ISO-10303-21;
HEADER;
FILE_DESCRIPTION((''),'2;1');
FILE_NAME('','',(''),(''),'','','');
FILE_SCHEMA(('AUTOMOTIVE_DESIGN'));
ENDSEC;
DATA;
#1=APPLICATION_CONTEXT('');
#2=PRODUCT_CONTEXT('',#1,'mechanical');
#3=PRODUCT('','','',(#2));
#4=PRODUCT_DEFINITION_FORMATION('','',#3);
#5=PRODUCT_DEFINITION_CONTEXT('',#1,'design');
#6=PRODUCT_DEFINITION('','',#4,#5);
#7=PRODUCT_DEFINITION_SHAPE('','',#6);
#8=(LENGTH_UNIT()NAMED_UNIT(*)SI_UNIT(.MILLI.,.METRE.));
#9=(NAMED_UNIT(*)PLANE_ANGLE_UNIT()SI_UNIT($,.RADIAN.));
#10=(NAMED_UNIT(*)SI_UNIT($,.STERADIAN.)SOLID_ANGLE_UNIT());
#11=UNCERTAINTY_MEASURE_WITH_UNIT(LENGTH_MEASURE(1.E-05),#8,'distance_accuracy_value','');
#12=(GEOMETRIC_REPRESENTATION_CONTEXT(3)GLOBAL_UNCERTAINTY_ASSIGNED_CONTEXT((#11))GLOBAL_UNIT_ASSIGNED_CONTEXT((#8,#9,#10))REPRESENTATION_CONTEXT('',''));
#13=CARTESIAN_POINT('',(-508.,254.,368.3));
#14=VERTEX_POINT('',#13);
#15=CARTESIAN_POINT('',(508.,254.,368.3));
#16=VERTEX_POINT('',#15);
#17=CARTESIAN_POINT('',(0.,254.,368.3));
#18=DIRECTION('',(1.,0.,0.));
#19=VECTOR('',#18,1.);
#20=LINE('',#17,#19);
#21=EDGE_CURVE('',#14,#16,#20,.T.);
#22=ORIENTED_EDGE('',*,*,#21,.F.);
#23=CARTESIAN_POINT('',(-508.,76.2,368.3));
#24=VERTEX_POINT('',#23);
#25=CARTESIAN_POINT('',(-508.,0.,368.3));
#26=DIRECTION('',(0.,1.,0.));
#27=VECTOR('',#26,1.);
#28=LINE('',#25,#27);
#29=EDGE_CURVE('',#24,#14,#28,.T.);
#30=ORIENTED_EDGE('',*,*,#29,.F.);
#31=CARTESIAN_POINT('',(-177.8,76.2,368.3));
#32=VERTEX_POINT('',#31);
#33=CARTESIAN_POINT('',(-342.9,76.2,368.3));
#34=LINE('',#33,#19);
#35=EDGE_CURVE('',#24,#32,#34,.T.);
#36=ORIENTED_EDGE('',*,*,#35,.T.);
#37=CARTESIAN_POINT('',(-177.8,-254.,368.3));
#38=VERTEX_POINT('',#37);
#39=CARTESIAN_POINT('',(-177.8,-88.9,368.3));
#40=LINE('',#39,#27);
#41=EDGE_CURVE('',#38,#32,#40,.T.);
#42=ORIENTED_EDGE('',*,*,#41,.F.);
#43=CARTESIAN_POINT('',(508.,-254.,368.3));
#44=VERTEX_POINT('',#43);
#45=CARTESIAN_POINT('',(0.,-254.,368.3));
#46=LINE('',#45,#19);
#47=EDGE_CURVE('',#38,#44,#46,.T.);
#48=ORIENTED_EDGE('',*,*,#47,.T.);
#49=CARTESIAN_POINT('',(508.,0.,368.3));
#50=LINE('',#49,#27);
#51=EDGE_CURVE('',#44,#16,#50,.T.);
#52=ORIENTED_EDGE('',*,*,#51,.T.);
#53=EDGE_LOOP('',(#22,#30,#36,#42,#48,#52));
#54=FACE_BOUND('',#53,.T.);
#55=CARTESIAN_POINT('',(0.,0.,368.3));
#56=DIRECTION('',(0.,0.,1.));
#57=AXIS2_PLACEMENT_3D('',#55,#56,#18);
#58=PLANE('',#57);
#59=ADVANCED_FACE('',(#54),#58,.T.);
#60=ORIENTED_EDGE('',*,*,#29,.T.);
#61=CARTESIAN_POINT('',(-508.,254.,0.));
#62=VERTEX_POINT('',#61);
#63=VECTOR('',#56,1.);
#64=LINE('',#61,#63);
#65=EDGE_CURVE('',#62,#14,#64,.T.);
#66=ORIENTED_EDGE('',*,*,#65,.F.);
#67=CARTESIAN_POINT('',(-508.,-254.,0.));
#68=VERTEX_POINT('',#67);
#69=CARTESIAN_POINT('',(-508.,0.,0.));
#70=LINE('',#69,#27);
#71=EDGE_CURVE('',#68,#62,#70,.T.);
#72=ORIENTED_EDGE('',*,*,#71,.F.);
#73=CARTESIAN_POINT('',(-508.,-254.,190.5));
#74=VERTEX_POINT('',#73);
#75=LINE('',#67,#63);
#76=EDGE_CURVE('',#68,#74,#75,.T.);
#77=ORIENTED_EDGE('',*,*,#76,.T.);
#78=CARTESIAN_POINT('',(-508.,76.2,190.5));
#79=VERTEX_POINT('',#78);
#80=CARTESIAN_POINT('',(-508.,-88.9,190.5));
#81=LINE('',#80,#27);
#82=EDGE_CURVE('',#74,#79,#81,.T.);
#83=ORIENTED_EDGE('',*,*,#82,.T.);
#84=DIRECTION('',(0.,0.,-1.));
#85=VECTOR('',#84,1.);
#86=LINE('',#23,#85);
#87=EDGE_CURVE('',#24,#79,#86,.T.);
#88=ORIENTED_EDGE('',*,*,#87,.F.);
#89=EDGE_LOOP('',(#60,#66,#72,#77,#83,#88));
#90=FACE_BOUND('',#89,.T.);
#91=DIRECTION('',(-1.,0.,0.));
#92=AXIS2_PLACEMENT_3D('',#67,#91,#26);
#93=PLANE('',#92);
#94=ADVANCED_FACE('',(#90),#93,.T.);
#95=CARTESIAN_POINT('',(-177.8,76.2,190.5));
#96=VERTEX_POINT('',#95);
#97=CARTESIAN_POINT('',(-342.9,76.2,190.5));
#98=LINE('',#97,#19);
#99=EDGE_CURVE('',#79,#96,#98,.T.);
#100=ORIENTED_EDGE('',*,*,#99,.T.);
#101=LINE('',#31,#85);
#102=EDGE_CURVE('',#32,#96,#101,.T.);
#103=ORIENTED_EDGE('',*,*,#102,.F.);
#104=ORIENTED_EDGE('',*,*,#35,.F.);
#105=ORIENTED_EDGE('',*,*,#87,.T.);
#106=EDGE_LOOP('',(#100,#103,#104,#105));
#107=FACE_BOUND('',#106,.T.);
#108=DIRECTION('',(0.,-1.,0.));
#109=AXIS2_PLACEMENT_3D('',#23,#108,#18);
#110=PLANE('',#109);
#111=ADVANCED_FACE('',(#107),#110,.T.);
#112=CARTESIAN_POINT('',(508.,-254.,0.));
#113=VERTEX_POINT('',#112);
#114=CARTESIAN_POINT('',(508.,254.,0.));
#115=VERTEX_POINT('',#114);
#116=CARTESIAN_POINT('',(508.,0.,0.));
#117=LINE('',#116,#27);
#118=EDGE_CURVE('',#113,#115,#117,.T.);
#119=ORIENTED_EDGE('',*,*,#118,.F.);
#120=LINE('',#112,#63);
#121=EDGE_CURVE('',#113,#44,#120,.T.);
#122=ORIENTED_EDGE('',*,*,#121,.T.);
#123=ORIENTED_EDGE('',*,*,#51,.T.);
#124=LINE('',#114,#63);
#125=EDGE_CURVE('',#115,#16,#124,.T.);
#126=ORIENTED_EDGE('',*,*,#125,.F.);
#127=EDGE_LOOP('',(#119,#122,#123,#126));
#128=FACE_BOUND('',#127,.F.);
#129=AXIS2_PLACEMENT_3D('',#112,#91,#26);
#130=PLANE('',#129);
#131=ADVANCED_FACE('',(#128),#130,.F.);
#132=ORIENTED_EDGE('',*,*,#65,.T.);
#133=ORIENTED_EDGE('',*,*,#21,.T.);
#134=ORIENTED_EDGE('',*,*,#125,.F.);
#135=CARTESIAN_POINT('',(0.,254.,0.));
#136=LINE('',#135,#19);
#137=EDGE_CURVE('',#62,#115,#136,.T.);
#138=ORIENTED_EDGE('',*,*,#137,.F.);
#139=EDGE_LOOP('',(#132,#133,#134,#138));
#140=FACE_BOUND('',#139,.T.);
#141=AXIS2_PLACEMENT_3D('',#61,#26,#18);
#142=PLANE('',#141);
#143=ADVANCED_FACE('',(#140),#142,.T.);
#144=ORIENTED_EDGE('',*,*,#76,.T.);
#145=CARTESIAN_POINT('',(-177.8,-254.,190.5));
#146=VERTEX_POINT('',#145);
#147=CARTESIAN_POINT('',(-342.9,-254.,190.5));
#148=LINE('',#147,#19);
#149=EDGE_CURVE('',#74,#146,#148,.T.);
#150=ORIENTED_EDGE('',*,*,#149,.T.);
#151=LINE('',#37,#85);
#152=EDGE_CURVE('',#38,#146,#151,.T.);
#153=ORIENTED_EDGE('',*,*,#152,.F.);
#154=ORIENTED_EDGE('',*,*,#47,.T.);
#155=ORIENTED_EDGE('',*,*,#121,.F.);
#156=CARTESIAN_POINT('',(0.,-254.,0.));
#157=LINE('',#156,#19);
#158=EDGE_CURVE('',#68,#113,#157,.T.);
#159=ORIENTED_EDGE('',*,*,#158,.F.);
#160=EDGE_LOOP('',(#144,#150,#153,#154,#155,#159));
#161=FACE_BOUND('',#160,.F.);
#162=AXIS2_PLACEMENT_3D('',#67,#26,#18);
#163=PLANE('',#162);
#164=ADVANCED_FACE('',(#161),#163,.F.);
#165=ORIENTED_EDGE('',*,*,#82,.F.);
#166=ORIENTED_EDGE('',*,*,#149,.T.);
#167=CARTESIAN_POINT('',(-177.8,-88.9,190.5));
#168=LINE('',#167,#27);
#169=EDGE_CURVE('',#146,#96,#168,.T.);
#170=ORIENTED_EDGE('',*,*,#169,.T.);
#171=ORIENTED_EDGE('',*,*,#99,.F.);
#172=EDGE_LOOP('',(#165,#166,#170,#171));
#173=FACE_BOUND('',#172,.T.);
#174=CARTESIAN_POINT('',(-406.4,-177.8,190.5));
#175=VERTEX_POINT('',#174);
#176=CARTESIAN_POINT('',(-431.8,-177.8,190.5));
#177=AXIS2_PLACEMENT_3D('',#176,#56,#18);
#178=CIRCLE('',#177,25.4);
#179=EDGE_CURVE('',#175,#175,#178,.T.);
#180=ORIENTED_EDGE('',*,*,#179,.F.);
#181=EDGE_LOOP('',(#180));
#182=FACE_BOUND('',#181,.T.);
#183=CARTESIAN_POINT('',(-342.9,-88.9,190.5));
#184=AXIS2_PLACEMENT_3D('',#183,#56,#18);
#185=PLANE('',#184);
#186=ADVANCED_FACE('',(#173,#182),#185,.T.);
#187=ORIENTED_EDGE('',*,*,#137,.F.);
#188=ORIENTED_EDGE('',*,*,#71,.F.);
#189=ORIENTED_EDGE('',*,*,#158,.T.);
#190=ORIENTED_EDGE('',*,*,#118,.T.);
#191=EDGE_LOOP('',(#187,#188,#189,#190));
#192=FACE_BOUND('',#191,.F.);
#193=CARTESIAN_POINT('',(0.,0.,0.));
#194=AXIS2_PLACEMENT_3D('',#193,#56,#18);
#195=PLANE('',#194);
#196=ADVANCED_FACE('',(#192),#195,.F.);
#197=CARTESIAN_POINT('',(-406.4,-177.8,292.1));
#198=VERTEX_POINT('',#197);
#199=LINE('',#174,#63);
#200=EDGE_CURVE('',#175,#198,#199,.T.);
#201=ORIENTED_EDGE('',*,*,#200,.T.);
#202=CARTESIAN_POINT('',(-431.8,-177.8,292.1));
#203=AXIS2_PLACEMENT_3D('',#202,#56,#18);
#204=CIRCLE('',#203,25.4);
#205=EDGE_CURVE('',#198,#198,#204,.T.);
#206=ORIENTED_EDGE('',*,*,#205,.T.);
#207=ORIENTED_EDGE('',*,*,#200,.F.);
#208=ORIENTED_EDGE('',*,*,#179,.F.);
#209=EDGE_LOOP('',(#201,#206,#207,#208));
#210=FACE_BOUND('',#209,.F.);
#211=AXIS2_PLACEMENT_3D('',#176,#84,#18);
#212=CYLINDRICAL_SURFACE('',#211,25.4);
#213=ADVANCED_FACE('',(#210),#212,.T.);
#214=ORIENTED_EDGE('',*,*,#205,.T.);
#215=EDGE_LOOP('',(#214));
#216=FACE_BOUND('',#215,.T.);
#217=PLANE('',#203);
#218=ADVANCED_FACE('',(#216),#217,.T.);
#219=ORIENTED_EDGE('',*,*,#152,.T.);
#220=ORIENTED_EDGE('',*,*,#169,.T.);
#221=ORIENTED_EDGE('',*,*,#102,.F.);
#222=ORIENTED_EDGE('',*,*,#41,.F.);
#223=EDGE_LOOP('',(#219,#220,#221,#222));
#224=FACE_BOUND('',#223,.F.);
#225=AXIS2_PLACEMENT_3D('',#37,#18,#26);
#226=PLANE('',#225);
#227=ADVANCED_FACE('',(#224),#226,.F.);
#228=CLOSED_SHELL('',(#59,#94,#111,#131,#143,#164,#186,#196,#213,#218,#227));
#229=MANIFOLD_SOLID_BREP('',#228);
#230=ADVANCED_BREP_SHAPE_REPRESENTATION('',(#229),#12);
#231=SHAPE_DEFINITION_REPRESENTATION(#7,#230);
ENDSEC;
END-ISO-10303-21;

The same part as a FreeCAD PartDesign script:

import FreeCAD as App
import Part
import Sketcher

V = App.Vector
Q = App.Units.Quantity

doc = App.newDocument("Part")
body = doc.addObject("PartDesign::Body", "Body")

# Sketch on XY plane
sketch1 = doc.addObject("Sketcher::SketchObject", "Sketch")
body.addObject(sketch1)
sketch1.AttachmentSupport = (doc.XY_Plane, [""])
sketch1.MapMode = "FlatFace"
sketch1.addGeometry([
    Part.LineSegment(V(-508, 254, 0), V(-508, -254, 0)),
    Part.LineSegment(V(-508, -254, 0), V(508, -254, 0)),
    Part.LineSegment(V(508, -254, 0), V(508, 254, 0)),
    Part.LineSegment(V(508, 254, 0), V(-508, 254, 0)),
], False)
sketch1.addConstraint([
    Sketcher.Constraint("Coincident", 0, 2, 1, 1),
    Sketcher.Constraint("Coincident", 1, 2, 2, 1),
    Sketcher.Constraint("Coincident", 2, 2, 3, 1),
    Sketcher.Constraint("Coincident", 3, 2, 0, 1),
    Sketcher.Constraint("Vertical", 0),
    Sketcher.Constraint("Horizontal", 1),
    Sketcher.Constraint("Vertical", 2),
    Sketcher.Constraint("Horizontal", 3),
    Sketcher.Constraint("Symmetric", 0, 2, 2, 2, -1, 1),
    Sketcher.Constraint("DistanceX", 1, 1, 1, 2, Q("40 in")),
    Sketcher.Constraint("DistanceY", 0, 2, 0, 1, Q("20 in")),
])
pad1 = doc.addObject("PartDesign::Pad", "Pad")
body.addObject(pad1)
pad1.Profile = sketch1
pad1.Length = Q("14.5 in")

# Sketch on XY plane
sketch2 = doc.addObject("Sketcher::SketchObject", "Sketch001")
body.addObject(sketch2)
sketch2.AttachmentSupport = (doc.XY_Plane, [""])
sketch2.MapMode = "FlatFace"
sketch2.AttachmentOffset = App.Placement(V(0, 0, 14.5 * 25.4), App.Rotation())
sketch2.addGeometry([
    Part.LineSegment(V(-508, 76, 0), V(-508, -254, 0)),
    Part.LineSegment(V(-508, -254, 0), V(-178, -254, 0)),
    Part.LineSegment(V(-178, -254, 0), V(-178, 76, 0)),
    Part.LineSegment(V(-178, 76, 0), V(-508, 76, 0)),
], False)
sketch2.addConstraint([
    Sketcher.Constraint("Coincident", 0, 2, 1, 1),
    Sketcher.Constraint("Coincident", 1, 2, 2, 1),
    Sketcher.Constraint("Coincident", 2, 2, 3, 1),
    Sketcher.Constraint("Coincident", 3, 2, 0, 1),
    Sketcher.Constraint("Vertical", 0),
    Sketcher.Constraint("Horizontal", 1),
    Sketcher.Constraint("Vertical", 2),
    Sketcher.Constraint("Horizontal", 3),
    Sketcher.Constraint("Equal", 3, 0),
    Sketcher.Constraint("DistanceX", 1, 1, 1, 2, Q("13 in")),
    Sketcher.Constraint("DistanceX", 0, 2, -1, 1, Q("20 in")),
    Sketcher.Constraint("DistanceY", 0, 2, -1, 1, Q("10 in")),
])
pocket1 = doc.addObject("PartDesign::Pocket", "Pocket")
body.addObject(pocket1)
pocket1.Profile = sketch2
pocket1.Length = Q("7 in")

# Sketch on XY plane
sketch3 = doc.addObject("Sketcher::SketchObject", "Sketch002")
body.addObject(sketch3)
sketch3.AttachmentSupport = (doc.XY_Plane, [""])
sketch3.MapMode = "FlatFace"
sketch3.AttachmentOffset = App.Placement(V(0, 0, 7.5 * 25.4), App.Rotation())
sketch3.addGeometry(Part.Circle(V(-432, -178, 0), V(0, 0, 1), 25), False)
sketch3.addConstraint([
    Sketcher.Constraint("Diameter", 0, Q("2 in")),
    Sketcher.Constraint("DistanceX", 0, 3, -1, 1, Q("17 in")),
    Sketcher.Constraint("DistanceY", 0, 3, -1, 1, Q("7 in")),
])
pad2 = doc.addObject("PartDesign::Pad", "Pad001")
body.addObject(pad2)
pad2.Profile = sketch3
pad2.Length = Q("4 in")

doc.recompute()
